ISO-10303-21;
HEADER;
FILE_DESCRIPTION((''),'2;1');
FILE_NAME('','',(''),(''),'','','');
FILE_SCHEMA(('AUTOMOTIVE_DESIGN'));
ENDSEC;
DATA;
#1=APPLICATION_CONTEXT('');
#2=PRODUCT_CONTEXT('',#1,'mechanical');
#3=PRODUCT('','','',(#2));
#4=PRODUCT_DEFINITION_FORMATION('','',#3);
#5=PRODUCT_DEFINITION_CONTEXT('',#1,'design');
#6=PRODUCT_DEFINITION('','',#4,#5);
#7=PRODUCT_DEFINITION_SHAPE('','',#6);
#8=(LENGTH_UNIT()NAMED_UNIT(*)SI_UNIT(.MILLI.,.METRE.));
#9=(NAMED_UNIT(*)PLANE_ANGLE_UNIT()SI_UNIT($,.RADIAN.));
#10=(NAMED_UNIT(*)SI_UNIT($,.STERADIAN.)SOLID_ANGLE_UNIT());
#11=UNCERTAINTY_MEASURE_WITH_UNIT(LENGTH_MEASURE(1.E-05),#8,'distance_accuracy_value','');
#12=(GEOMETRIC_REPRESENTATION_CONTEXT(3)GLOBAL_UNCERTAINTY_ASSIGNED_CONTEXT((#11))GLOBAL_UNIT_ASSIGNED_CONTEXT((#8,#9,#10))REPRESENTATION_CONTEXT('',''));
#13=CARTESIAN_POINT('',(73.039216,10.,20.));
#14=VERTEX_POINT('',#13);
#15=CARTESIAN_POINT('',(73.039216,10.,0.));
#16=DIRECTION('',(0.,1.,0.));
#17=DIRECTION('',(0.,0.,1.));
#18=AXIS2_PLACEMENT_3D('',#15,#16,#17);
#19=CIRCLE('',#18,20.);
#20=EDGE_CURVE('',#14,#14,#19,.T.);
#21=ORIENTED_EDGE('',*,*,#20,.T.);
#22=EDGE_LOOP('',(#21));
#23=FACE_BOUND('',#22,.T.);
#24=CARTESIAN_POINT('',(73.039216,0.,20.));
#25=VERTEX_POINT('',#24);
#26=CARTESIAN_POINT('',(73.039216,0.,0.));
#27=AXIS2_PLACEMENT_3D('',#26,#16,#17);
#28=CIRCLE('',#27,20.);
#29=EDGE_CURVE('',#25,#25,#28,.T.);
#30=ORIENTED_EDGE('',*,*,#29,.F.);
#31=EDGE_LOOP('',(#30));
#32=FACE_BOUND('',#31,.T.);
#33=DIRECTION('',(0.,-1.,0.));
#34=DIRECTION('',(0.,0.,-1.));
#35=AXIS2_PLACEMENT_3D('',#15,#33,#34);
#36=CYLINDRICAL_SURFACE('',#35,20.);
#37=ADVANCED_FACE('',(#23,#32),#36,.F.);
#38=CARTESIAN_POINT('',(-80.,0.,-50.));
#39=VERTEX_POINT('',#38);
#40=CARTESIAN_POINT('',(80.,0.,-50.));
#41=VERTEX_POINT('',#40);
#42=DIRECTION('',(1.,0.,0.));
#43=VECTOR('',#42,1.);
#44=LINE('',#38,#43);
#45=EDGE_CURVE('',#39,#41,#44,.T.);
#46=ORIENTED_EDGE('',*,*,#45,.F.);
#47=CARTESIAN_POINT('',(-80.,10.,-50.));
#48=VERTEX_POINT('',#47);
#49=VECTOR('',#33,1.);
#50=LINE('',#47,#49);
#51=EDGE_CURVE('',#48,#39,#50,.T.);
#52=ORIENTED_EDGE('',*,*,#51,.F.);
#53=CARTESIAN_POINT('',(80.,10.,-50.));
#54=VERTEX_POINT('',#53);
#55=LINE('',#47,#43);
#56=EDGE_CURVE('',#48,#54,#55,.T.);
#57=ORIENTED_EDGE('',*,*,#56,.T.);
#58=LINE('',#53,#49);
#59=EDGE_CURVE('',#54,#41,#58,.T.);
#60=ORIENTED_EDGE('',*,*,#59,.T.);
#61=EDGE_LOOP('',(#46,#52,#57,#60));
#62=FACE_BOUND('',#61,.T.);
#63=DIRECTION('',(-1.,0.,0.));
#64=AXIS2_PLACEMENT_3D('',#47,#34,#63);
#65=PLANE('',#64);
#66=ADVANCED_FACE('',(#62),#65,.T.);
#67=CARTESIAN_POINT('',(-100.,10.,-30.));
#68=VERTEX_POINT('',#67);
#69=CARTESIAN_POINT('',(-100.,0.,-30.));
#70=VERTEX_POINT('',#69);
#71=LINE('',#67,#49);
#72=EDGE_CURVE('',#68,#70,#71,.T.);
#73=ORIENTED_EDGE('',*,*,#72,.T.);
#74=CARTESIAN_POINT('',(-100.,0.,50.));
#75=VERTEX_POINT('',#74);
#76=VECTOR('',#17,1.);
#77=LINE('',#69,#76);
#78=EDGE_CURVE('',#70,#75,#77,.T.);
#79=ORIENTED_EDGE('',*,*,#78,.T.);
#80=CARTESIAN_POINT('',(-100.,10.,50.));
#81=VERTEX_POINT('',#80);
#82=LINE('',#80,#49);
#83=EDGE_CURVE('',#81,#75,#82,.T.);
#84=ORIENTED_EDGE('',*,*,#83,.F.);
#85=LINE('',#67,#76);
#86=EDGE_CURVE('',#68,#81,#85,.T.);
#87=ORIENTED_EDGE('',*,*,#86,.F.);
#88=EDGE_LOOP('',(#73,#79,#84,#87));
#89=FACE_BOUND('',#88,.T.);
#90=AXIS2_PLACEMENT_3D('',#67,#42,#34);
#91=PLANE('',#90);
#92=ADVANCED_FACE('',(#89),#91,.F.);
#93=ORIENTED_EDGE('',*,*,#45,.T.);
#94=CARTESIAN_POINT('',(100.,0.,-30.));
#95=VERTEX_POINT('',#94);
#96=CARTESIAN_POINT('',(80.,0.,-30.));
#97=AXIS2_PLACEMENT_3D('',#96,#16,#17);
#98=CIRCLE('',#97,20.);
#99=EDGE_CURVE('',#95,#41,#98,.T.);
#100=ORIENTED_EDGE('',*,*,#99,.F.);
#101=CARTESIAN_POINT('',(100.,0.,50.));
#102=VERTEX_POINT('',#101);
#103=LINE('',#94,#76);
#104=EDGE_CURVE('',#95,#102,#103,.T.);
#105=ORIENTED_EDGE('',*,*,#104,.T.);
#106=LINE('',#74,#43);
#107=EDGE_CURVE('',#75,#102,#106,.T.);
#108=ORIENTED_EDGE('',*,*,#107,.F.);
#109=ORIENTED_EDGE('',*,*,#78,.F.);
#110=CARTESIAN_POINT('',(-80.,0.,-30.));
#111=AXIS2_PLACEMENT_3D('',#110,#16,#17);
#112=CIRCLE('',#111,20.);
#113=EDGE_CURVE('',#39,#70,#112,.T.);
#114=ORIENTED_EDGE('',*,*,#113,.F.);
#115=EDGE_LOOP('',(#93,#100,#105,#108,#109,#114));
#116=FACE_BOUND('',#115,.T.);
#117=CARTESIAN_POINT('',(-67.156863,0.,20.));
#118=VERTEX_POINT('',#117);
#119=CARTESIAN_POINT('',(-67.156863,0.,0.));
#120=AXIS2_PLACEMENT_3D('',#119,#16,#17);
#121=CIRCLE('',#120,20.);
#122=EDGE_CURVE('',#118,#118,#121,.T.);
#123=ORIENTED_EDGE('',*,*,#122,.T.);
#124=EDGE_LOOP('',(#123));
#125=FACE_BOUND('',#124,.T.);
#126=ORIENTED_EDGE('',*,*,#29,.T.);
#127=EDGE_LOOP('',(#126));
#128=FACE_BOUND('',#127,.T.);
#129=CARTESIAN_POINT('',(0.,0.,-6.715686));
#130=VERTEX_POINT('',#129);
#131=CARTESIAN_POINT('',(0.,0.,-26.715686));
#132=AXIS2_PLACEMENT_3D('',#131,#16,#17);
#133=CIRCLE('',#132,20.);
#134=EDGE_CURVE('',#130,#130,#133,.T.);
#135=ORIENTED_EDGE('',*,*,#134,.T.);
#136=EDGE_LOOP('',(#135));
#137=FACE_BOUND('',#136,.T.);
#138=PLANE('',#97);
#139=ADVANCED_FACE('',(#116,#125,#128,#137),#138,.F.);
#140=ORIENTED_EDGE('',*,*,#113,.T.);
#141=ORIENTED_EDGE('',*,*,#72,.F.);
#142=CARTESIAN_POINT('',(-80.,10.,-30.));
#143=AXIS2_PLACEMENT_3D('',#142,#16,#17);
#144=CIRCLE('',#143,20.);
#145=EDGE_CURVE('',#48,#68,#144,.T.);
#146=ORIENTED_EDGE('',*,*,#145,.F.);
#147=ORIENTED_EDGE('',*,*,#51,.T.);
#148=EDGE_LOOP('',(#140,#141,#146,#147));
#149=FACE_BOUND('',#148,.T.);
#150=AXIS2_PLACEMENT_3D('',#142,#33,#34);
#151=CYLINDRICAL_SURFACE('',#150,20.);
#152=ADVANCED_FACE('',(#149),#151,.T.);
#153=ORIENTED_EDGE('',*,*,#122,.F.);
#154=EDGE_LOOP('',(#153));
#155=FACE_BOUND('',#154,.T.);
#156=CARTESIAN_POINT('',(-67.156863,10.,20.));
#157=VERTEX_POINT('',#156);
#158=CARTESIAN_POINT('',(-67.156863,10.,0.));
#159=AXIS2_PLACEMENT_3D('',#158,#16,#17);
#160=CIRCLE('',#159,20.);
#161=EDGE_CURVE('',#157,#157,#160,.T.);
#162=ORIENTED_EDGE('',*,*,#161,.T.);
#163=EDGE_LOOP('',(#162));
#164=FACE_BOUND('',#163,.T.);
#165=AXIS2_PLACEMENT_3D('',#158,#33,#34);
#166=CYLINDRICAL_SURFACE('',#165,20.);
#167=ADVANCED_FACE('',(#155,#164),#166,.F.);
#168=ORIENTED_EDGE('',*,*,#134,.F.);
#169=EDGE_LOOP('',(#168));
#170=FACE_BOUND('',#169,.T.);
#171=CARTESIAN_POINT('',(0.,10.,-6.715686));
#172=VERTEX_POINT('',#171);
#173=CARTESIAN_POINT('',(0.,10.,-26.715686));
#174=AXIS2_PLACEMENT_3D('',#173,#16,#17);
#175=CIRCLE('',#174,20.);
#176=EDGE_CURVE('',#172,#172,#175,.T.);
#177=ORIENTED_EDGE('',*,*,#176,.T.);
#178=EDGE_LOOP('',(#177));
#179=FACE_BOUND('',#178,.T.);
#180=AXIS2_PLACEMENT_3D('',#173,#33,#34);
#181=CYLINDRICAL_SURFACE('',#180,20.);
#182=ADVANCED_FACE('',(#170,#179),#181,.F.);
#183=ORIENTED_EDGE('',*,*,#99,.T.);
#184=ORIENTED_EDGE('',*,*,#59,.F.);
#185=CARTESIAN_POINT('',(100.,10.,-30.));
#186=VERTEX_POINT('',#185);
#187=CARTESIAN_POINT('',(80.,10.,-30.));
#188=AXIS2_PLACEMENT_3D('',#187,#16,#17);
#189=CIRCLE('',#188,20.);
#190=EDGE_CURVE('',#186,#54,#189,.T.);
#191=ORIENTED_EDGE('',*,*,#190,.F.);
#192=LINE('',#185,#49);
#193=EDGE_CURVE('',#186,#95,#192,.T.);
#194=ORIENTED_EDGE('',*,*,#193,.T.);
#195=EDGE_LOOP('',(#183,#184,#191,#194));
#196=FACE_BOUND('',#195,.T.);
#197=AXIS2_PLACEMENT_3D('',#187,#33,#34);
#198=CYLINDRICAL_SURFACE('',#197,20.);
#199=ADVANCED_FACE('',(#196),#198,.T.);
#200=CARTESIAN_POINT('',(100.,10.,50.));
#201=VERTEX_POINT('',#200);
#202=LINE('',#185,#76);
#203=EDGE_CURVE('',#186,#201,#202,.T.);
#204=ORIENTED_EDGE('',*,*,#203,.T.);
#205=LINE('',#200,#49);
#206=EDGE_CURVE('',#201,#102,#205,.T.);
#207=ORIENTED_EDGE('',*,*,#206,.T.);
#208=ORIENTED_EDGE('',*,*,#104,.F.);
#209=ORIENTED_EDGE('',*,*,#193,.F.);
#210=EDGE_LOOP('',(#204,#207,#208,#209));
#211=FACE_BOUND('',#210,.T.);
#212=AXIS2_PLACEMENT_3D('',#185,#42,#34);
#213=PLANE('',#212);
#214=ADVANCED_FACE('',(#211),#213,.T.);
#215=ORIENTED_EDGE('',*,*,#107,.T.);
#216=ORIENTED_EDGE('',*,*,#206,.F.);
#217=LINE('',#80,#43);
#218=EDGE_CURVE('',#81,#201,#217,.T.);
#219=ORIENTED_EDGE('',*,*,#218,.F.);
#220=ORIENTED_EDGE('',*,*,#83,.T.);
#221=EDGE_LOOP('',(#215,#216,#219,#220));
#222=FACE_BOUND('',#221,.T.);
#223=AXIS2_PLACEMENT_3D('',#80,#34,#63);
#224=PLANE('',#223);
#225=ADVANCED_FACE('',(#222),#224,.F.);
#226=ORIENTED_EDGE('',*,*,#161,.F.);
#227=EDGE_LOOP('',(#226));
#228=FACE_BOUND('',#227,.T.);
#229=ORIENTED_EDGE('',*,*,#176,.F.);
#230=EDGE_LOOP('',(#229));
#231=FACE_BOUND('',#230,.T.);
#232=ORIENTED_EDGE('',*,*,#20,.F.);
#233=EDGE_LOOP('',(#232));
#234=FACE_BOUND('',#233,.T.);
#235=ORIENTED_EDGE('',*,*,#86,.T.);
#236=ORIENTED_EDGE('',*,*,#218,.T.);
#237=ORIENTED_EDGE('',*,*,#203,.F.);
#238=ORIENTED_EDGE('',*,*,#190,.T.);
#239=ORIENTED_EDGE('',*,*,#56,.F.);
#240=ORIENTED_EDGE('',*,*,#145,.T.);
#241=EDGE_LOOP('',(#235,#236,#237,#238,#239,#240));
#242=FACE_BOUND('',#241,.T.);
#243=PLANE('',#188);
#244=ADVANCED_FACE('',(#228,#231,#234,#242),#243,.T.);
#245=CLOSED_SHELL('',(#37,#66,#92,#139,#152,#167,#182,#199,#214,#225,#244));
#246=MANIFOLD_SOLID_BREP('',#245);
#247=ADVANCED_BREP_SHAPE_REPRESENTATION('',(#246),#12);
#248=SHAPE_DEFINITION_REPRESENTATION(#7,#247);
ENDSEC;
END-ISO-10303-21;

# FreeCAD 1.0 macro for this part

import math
import FreeCAD as App
import Part
import Sketcher

doc = App.newDocument("Part")
params = doc.addObject("Spreadsheet::Sheet", "Params")
for row, (alias, value) in enumerate([
    ("sketch1_diameter", "40 mm"),
    ("sketch1_width", "160 mm"),
    ("sketch1_height", "80 mm"),
    ("pad1_length", "10 mm"),
], start=1):
    params.set(f"A{row}", alias)
    params.set(f"B{row}", "=" + value)
    params.setAlias(f"B{row}", alias)

body = doc.addObject("PartDesign::Body", "Body")

# Sketch on XZ plane
sketch1 = body.newObject("Sketcher::SketchObject", "Sketch")
sketch1.AttachmentSupport = (doc.getObject("XZ_Plane"), [""])
sketch1.MapMode = "FlatFace"
sketch1.addGeometry([
    Part.LineSegment(App.Vector(80, -50, 0), App.Vector(-80, -50, 0)),  # 0
    Part.ArcOfCircle(Part.Circle(App.Vector(-80, -30, 0), App.Vector(0, 0, 1), 20), math.radians(180), math.radians(270)),  # 1
    Part.LineSegment(App.Vector(-100, -30, 0), App.Vector(-100, 50, 0)),  # 2
    Part.LineSegment(App.Vector(-100, 50, 0), App.Vector(100, 50, 0)),  # 3
    Part.LineSegment(App.Vector(100, 50, 0), App.Vector(100, -30, 0)),  # 4
    Part.ArcOfCircle(Part.Circle(App.Vector(80, -30, 0), App.Vector(0, 0, 1), 20), math.radians(-90), math.radians(0)),  # 5
    Part.Circle(App.Vector(73, 0, 0), App.Vector(0, 0, 1), 20),  # 6
    Part.Circle(App.Vector(-67, 0, 0), App.Vector(0, 0, 1), 20),  # 7
    Part.Circle(App.Vector(0, -27, 0), App.Vector(0, 0, 1), 20),  # 8
], False)
sketch1.addConstraint([
    Sketcher.Constraint("Tangent", 0, 2, 1, 2),
    Sketcher.Constraint("Tangent", 1, 1, 2, 1),
    Sketcher.Constraint("Coincident", 2, 2, 3, 1),
    Sketcher.Constraint("Coincident", 3, 2, 4, 1),
    Sketcher.Constraint("Tangent", 4, 2, 5, 2),
    Sketcher.Constraint("Tangent", 5, 1, 0, 1),
    Sketcher.Constraint("Horizontal", 0),
    Sketcher.Constraint("Vertical", 2),
    Sketcher.Constraint("Horizontal", 3),
    Sketcher.Constraint("Vertical", 4),
    Sketcher.Constraint("Equal", 1, 5),
    Sketcher.Constraint("Equal", 5, 6),
    Sketcher.Constraint("Equal", 6, 7),
    Sketcher.Constraint("Equal", 7, 8),
    Sketcher.Constraint("PointOnObject", 6, 3, -1),
    Sketcher.Constraint("PointOnObject", 7, 3, -1),
    Sketcher.Constraint("PointOnObject", 8, 3, -2),
    Sketcher.Constraint("Diameter", 6, 40.0),
    Sketcher.Constraint("DistanceX", 0, 2, 0, 1, 160.0),
    Sketcher.Constraint("DistanceY", 2, 1, 2, 2, 80.0),
    Sketcher.Constraint("DistanceX", 1, 3, -1, 1, 80.0),
    Sketcher.Constraint("DistanceY", 1, 3, -1, 1, 30.0),
    Sketcher.Constraint("DistanceX", 7, 3, 6, 3, 140.196078),
    Sketcher.Constraint("DistanceX", -1, 1, 6, 3, 73.039216),
    Sketcher.Constraint("DistanceY", 8, 3, -1, 1, 26.715686),
])
sketch1.setExpression("Constraints[17]", "Params.sketch1_diameter")
sketch1.setExpression("Constraints[18]", "Params.sketch1_width")
sketch1.setExpression("Constraints[19]", "Params.sketch1_height")
pad1 = body.newObject("PartDesign::Pad", "Pad")
pad1.Profile = sketch1
pad1.setExpression("Length", "Params.pad1_length")
pad1.Reversed = True

doc.recompute()
